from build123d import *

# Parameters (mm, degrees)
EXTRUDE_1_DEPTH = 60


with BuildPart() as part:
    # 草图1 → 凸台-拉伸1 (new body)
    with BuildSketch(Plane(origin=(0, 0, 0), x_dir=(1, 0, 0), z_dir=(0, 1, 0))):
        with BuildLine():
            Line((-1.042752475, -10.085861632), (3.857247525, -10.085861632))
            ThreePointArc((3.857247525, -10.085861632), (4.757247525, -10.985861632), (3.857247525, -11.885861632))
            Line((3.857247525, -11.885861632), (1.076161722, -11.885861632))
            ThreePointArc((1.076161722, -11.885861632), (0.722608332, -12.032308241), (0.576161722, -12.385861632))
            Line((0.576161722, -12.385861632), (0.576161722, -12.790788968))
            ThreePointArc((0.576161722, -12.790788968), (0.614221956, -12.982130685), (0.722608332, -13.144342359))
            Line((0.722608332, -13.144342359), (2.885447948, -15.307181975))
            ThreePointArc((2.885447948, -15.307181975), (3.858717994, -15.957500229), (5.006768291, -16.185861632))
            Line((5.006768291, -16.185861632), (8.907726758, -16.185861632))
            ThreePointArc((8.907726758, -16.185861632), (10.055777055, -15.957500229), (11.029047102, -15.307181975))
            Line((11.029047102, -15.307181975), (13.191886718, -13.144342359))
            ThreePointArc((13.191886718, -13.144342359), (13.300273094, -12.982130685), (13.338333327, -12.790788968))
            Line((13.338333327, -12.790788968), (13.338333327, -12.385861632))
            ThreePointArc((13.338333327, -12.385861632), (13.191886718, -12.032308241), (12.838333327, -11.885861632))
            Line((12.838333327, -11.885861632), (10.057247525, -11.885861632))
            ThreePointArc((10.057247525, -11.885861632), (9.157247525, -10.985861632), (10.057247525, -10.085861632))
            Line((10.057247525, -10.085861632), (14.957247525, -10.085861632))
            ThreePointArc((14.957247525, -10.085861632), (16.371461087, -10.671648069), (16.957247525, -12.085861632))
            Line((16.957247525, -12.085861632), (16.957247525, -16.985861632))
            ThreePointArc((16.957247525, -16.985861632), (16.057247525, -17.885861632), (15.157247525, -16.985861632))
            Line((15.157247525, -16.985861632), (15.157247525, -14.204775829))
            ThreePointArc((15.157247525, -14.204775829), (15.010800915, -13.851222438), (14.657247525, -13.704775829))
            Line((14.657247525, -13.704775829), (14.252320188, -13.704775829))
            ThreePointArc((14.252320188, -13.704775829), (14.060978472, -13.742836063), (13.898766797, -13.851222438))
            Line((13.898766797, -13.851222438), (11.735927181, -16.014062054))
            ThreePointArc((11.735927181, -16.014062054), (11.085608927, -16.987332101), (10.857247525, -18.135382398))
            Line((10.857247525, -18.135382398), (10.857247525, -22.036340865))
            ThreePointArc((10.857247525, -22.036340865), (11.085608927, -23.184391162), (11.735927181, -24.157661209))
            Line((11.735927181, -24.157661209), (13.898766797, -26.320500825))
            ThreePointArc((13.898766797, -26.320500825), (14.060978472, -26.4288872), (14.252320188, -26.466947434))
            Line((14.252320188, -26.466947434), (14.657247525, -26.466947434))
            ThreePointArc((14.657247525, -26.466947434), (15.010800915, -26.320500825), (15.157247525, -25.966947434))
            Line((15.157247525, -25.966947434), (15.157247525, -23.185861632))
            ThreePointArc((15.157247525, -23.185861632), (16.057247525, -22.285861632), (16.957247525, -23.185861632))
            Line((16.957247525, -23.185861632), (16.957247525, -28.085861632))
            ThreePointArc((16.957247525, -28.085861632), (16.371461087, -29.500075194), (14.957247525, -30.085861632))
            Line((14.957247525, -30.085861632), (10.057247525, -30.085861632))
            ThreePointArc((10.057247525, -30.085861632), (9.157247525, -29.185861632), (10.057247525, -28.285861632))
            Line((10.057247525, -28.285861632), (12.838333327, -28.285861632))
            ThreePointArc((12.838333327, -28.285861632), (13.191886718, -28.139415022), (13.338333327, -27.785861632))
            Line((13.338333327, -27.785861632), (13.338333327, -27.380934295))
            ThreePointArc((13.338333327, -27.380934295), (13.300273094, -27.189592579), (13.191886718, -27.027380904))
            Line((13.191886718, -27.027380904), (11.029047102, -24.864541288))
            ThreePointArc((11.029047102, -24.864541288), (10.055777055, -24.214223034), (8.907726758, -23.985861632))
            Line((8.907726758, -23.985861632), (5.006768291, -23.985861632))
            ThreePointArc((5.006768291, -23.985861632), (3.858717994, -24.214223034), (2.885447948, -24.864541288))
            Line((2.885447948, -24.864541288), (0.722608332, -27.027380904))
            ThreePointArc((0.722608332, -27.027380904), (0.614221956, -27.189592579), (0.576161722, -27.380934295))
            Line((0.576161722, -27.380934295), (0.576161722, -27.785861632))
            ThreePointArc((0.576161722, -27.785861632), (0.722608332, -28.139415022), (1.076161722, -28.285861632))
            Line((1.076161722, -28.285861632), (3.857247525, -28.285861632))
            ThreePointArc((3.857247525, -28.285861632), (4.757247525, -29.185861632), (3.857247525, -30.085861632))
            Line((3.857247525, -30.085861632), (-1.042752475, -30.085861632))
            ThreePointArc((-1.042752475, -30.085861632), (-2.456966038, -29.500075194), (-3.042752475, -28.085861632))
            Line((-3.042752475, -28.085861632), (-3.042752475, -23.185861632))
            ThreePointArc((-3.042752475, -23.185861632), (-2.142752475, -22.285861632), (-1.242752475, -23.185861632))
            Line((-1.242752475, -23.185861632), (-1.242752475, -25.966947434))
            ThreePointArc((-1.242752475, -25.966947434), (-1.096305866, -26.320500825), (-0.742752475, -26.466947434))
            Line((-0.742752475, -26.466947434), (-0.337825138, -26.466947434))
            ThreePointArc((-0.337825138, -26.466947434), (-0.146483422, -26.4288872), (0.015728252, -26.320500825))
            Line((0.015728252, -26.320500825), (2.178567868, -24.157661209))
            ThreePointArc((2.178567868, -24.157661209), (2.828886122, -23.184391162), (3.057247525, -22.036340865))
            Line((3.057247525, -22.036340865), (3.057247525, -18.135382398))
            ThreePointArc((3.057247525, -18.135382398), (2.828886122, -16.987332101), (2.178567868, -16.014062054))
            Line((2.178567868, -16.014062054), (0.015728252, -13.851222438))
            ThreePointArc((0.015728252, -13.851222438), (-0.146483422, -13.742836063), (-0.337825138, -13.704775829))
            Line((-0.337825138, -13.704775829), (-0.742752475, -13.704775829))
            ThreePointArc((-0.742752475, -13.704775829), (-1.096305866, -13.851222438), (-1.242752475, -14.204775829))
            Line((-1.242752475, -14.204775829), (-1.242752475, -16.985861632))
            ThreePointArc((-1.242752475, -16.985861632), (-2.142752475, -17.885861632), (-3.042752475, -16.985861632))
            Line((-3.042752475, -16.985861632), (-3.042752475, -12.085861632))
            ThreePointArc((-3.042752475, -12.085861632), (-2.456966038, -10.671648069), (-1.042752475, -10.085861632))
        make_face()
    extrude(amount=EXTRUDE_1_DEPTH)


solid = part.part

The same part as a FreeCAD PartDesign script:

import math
import FreeCAD as App
import Part
import Sketcher
from FreeCAD import Vector
Q = App.Units.Quantity

doc = App.newDocument("Part")
params = doc.addObject("Spreadsheet::Sheet", "Params")
for row, (alias, value) in enumerate([
    ("sketch1_radius", "2 mm"),
    ("sketch1_radius2", "3 mm"),
    ("sketch1_radius3", "0.9 mm"),
    ("sketch1_radius4", "0.5 mm"),
    ("sketch1_width", "4.9 mm"),
    ("pad1_length", "60 mm"),
], start=1):
    params.set(f"A{row}", alias)
    params.set(f"B{row}", "=" + value)
    params.setAlias(f"B{row}", alias)

body = doc.addObject("PartDesign::Body", "Body")

sketch1 = body.newObject("Sketcher::SketchObject", "Sketch")
sketch1.AttachmentSupport = (doc.getObject("XZ_Plane"), [""])
sketch1.MapMode = "FlatFace"
sketch1.addGeometry([
    Part.LineSegment(Vector(3.857248, 10.085862, 0), Vector(-1.042752, 10.085862, 0)),
    Part.ArcOfCircle(Part.Circle(Vector(-1.042752, 12.085862, 0), Vector(0, 0, 1), 2), math.radians(180), math.radians(270)),
    Part.LineSegment(Vector(-3.042752, 12.085862, 0), Vector(-3.042752, 16.985862, 0)),
    Part.ArcOfCircle(Part.Circle(Vector(-2.142752, 16.985862, 0), Vector(0, 0, 1), 0.9), math.radians(0), math.radians(180)),
    Part.LineSegment(Vector(-1.242752, 16.985862, 0), Vector(-1.242752, 14.204776, 0)),
    Part.ArcOfCircle(Part.Circle(Vector(-0.742752, 14.204776, 0), Vector(0, 0, 1), 0.5), math.radians(180), math.radians(270)),
    Part.LineSegment(Vector(-0.742752, 13.704776, 0), Vector(-0.337825, 13.704776, 0)),
    Part.ArcOfCircle(Part.Circle(Vector(-0.337825, 14.204776, 0), Vector(0, 0, 1), 0.5), math.radians(-90), math.radians(-45)),
    Part.LineSegment(Vector(0.015728, 13.851222, 0), Vector(2.178568, 16.014062, 0)),
    Part.ArcOfCircle(Part.Circle(Vector(0.057248, 18.135382, 0), Vector(0, 0, 1), 3), math.radians(-45), math.radians(0)),
    Part.LineSegment(Vector(3.057248, 18.135382, 0), Vector(3.057248, 22.036341, 0)),
    Part.ArcOfCircle(Part.Circle(Vector(0.057248, 22.036341, 0), Vector(0, 0, 1), 3), math.radians(0), math.radians(45)),
    Part.LineSegment(Vector(2.178568, 24.157661, 0), Vector(0.015728, 26.320501, 0)),
    Part.ArcOfCircle(Part.Circle(Vector(-0.337825, 25.966947, 0), Vector(0, 0, 1), 0.5), math.radians(45), math.radians(90)),
    Part.LineSegment(Vector(-0.337825, 26.466947, 0), Vector(-0.742752, 26.466947, 0)),
    Part.ArcOfCircle(Part.Circle(Vector(-0.742752, 25.966947, 0), Vector(0, 0, 1), 0.5), math.radians(90), math.radians(180)),
    Part.LineSegment(Vector(-1.242752, 25.966947, 0), Vector(-1.242752, 23.185862, 0)),
    Part.ArcOfCircle(Part.Circle(Vector(-2.142752, 23.185862, 0), Vector(0, 0, 1), 0.9), math.radians(180), math.radians(360)),
    Part.LineSegment(Vector(-3.042752, 23.185862, 0), Vector(-3.042752, 28.085862, 0)),
    Part.ArcOfCircle(Part.Circle(Vector(-1.042752, 28.085862, 0), Vector(0, 0, 1), 2), math.radians(90), math.radians(180)),
    Part.LineSegment(Vector(-1.042752, 30.085862, 0), Vector(3.857248, 30.085862, 0)),
    Part.ArcOfCircle(Part.Circle(Vector(3.857248, 29.185862, 0), Vector(0, 0, 1), 0.9), math.radians(-90), math.radians(90)),
    Part.LineSegment(Vector(3.857248, 28.285862, 0), Vector(1.076162, 28.285862, 0)),
    Part.ArcOfCircle(Part.Circle(Vector(1.076162, 27.785862, 0), Vector(0, 0, 1), 0.5), math.radians(90), math.radians(180)),
    Part.LineSegment(Vector(0.576162, 27.785862, 0), Vector(0.576162, 27.380934, 0)),
    Part.ArcOfCircle(Part.Circle(Vector(1.076162, 27.380934, 0), Vector(0, 0, 1), 0.5), math.radians(-180), math.radians(-135)),
    Part.LineSegment(Vector(0.722608, 27.027381, 0), Vector(2.885448, 24.864541, 0)),
    Part.ArcOfCircle(Part.Circle(Vector(5.006768, 26.985862, 0), Vector(0, 0, 1), 3), math.radians(-135), math.radians(-90)),
    Part.LineSegment(Vector(5.006768, 23.985862, 0), Vector(8.907727, 23.985862, 0)),
    Part.ArcOfCircle(Part.Circle(Vector(8.907727, 26.985862, 0), Vector(0, 0, 1), 3), math.radians(-90), math.radians(-45)),
    Part.LineSegment(Vector(11.029047, 24.864541, 0), Vector(13.191887, 27.027381, 0)),
    Part.ArcOfCircle(Part.Circle(Vector(12.838333, 27.380934, 0), Vector(0, 0, 1), 0.5), math.radians(-45), math.radians(0)),
    Part.LineSegment(Vector(13.338333, 27.380934, 0), Vector(13.338333, 27.785862, 0)),
    Part.ArcOfCircle(Part.Circle(Vector(12.838333, 27.785862, 0), Vector(0, 0, 1), 0.5), math.radians(0), math.radians(90)),
    Part.LineSegment(Vector(12.838333, 28.285862, 0), Vector(10.057248, 28.285862, 0)),
    Part.ArcOfCircle(Part.Circle(Vector(10.057248, 29.185862, 0), Vector(0, 0, 1), 0.9), math.radians(90), math.radians(270)),
    Part.LineSegment(Vector(10.057248, 30.085862, 0), Vector(14.957248, 30.085862, 0)),
    Part.ArcOfCircle(Part.Circle(Vector(14.957248, 28.085862, 0), Vector(0, 0, 1), 2), math.radians(0), math.radians(90)),
    Part.LineSegment(Vector(16.957248, 28.085862, 0), Vector(16.957248, 23.185862, 0)),
    Part.ArcOfCircle(Part.Circle(Vector(16.057248, 23.185862, 0), Vector(0, 0, 1), 0.9), math.radians(180), math.radians(360)),
    Part.LineSegment(Vector(15.157248, 23.185862, 0), Vector(15.157248, 25.966947, 0)),
    Part.ArcOfCircle(Part.Circle(Vector(14.657248, 25.966947, 0), Vector(0, 0, 1), 0.5), math.radians(0), math.radians(90)),
    Part.LineSegment(Vector(14.657248, 26.466947, 0), Vector(14.25232, 26.466947, 0)),
    Part.ArcOfCircle(Part.Circle(Vector(14.25232, 25.966947, 0), Vector(0, 0, 1), 0.5), math.radians(90), math.radians(135)),
    Part.LineSegment(Vector(13.898767, 26.320501, 0), Vector(11.735927, 24.157661, 0)),
    Part.ArcOfCircle(Part.Circle(Vector(13.857248, 22.036341, 0), Vector(0, 0, 1), 3), math.radians(135), math.radians(180)),
    Part.LineSegment(Vector(10.857248, 22.036341, 0), Vector(10.857248, 18.135382, 0)),
    Part.ArcOfCircle(Part.Circle(Vector(13.857248, 18.135382, 0), Vector(0, 0, 1), 3), math.radians(180), math.radians(225)),
    Part.LineSegment(Vector(11.735927, 16.014062, 0), Vector(13.898767, 13.851222, 0)),
    Part.ArcOfCircle(Part.Circle(Vector(14.25232, 14.204776, 0), Vector(0, 0, 1), 0.5), math.radians(-135), math.radians(-90)),
    Part.LineSegment(Vector(14.25232, 13.704776, 0), Vector(14.657248, 13.704776, 0)),
    Part.ArcOfCircle(Part.Circle(Vector(14.657248, 14.204776, 0), Vector(0, 0, 1), 0.5), math.radians(-90), math.radians(0)),
    Part.LineSegment(Vector(15.157248, 14.204776, 0), Vector(15.157248, 16.985862, 0)),
    Part.ArcOfCircle(Part.Circle(Vector(16.057248, 16.985862, 0), Vector(0, 0, 1), 0.9), math.radians(0), math.radians(180)),
    Part.LineSegment(Vector(16.957248, 16.985862, 0), Vector(16.957248, 12.085862, 0)),
    Part.ArcOfCircle(Part.Circle(Vector(14.957248, 12.085862, 0), Vector(0, 0, 1), 2), math.radians(-90), math.radians(0)),
    Part.LineSegment(Vector(14.957248, 10.085862, 0), Vector(10.057248, 10.085862, 0)),
    Part.ArcOfCircle(Part.Circle(Vector(10.057248, 10.985862, 0), Vector(0, 0, 1), 0.9), math.radians(90), math.radians(270)),
    Part.LineSegment(Vector(10.057248, 11.885862, 0), Vector(12.838333, 11.885862, 0)),
    Part.ArcOfCircle(Part.Circle(Vector(12.838333, 12.385862, 0), Vector(0, 0, 1), 0.5), math.radians(-90), math.radians(0)),
    Part.LineSegment(Vector(13.338333, 12.385862, 0), Vector(13.338333, 12.790789, 0)),
    Part.ArcOfCircle(Part.Circle(Vector(12.838333, 12.790789, 0), Vector(0, 0, 1), 0.5), math.radians(0), math.radians(45)),
    Part.LineSegment(Vector(13.191887, 13.144342, 0), Vector(11.029047, 15.307182, 0)),
    Part.ArcOfCircle(Part.Circle(Vector(8.907727, 13.185862, 0), Vector(0, 0, 1), 3), math.radians(45), math.radians(90)),
    Part.LineSegment(Vector(8.907727, 16.185862, 0), Vector(5.006768, 16.185862, 0)),
    Part.ArcOfCircle(Part.Circle(Vector(5.006768, 13.185862, 0), Vector(0, 0, 1), 3), math.radians(90), math.radians(135)),
    Part.LineSegment(Vector(2.885448, 15.307182, 0), Vector(0.722608, 13.144342, 0)),
    Part.ArcOfCircle(Part.Circle(Vector(1.076162, 12.790789, 0), Vector(0, 0, 1), 0.5), math.radians(135), math.radians(180)),
    Part.LineSegment(Vector(0.576162, 12.790789, 0), Vector(0.576162, 12.385862, 0)),
    Part.ArcOfCircle(Part.Circle(Vector(1.076162, 12.385862, 0), Vector(0, 0, 1), 0.5), math.radians(180), math.radians(270)),
    Part.LineSegment(Vector(1.076162, 11.885862, 0), Vector(3.857248, 11.885862, 0)),
    Part.ArcOfCircle(Part.Circle(Vector(3.857248, 10.985862, 0), Vector(0, 0, 1), 0.9), math.radians(-90), math.radians(90)),
], False)
sketch1.addConstraint([
    Sketcher.Constraint("Tangent", 0, 2, 1, 2),
    Sketcher.Constraint("Tangent", 1, 1, 2, 1),
    Sketcher.Constraint("Tangent", 2, 2, 3, 2),
    Sketcher.Constraint("Tangent", 3, 1, 4, 1),
    Sketcher.Constraint("Tangent", 4, 2, 5, 1),
    Sketcher.Constraint("Tangent", 5, 2, 6, 1),
    Sketcher.Constraint("Tangent", 6, 2, 7, 1),
    Sketcher.Constraint("Tangent", 7, 2, 8, 1),
    Sketcher.Constraint("Tangent", 8, 2, 9, 1),
    Sketcher.Constraint("Tangent", 9, 2, 10, 1),
    Sketcher.Constraint("Tangent", 10, 2, 11, 1),
    Sketcher.Constraint("Tangent", 11, 2, 12, 1),
    Sketcher.Constraint("Tangent", 12, 2, 13, 1),
    Sketcher.Constraint("Tangent", 13, 2, 14, 1),
    Sketcher.Constraint("Tangent", 14, 2, 15, 1),
    Sketcher.Constraint("Tangent", 15, 2, 16, 1),
    Sketcher.Constraint("Tangent", 16, 2, 17, 2),
    Sketcher.Constraint("Tangent", 17, 1, 18, 1),
    Sketcher.Constraint("Tangent", 18, 2, 19, 2),
    Sketcher.Constraint("Tangent", 19, 1, 20, 1),
    Sketcher.Constraint("Tangent", 20, 2, 21, 2),
    Sketcher.Constraint("Tangent", 21, 1, 22, 1),
    Sketcher.Constraint("Tangent", 22, 2, 23, 1),
    Sketcher.Constraint("Tangent", 23, 2, 24, 1),
    Sketcher.Constraint("Tangent", 24, 2, 25, 1),
    Sketcher.Constraint("Tangent", 25, 2, 26, 1),
    Sketcher.Constraint("Tangent", 26, 2, 27, 1),
    Sketcher.Constraint("Tangent", 27, 2, 28, 1),
    Sketcher.Constraint("Tangent", 28, 2, 29, 1),
    Sketcher.Constraint("Tangent", 29, 2, 30, 1),
    Sketcher.Constraint("Tangent", 30, 2, 31, 1),
    Sketcher.Constraint("Tangent", 31, 2, 32, 1),
    Sketcher.Constraint("Tangent", 32, 2, 33, 1),
    Sketcher.Constraint("Tangent", 33, 2, 34, 1),
    Sketcher.Constraint("Tangent", 34, 2, 35, 2),
    Sketcher.Constraint("Tangent", 35, 1, 36, 1),
    Sketcher.Constraint("Tangent", 36, 2, 37, 2),
    Sketcher.Constraint("Tangent", 37, 1, 38, 1),
    Sketcher.Constraint("Tangent", 38, 2, 39, 2),
    Sketcher.Constraint("Tangent", 39, 1, 40, 1),
    Sketcher.Constraint("Tangent", 40, 2, 41, 1),
    Sketcher.Constraint("Tangent", 41, 2, 42, 1),
    Sketcher.Constraint("Tangent", 42, 2, 43, 1),
    Sketcher.Constraint("Tangent", 43, 2, 44, 1),
    Sketcher.Constraint("Tangent", 44, 2, 45, 1),
    Sketcher.Constraint("Tangent", 45, 2, 46, 1),
    Sketcher.Constraint("Tangent", 46, 2, 47, 1),
    Sketcher.Constraint("Tangent", 47, 2, 48, 1),
    Sketcher.Constraint("Tangent", 48, 2, 49, 1),
    Sketcher.Constraint("Tangent", 49, 2, 50, 1),
    Sketcher.Constraint("Tangent", 50, 2, 51, 1),
    Sketcher.Constraint("Tangent", 51, 2, 52, 1),
    Sketcher.Constraint("Tangent", 52, 2, 53, 2),
    Sketcher.Constraint("Tangent", 53, 1, 54, 1),
    Sketcher.Constraint("Tangent", 54, 2, 55, 2),
    Sketcher.Constraint("Tangent", 55, 1, 56, 1),
    Sketcher.Constraint("Tangent", 56, 2, 57, 2),
    Sketcher.Constraint("Tangent", 57, 1, 58, 1),
    Sketcher.Constraint("Tangent", 58, 2, 59, 1),
    Sketcher.Constraint("Tangent", 59, 2, 60, 1),
    Sketcher.Constraint("Tangent", 60, 2, 61, 1),
    Sketcher.Constraint("Tangent", 61, 2, 62, 1),
    Sketcher.Constraint("Tangent", 62, 2, 63, 1),
    Sketcher.Constraint("Tangent", 63, 2, 64, 1),
    Sketcher.Constraint("Tangent", 64, 2, 65, 1),
    Sketcher.Constraint("Tangent", 65, 2, 66, 1),
    Sketcher.Constraint("Tangent", 66, 2, 67, 1),
    Sketcher.Constraint("Tangent", 67, 2, 68, 1),
    Sketcher.Constraint("Tangent", 68, 2, 69, 1),
    Sketcher.Constraint("Tangent", 69, 2, 70, 1),
    Sketcher.Constraint("Tangent", 70, 2, 71, 2),
    Sketcher.Constraint("Tangent", 71, 1, 0, 1),
    Sketcher.Constraint("Horizontal", 0),
    Sketcher.Constraint("Vertical", 2),
    Sketcher.Constraint("Vertical", 4),
    Sketcher.Constraint("Horizontal", 6),
    Sketcher.Constraint("Vertical", 10),
    Sketcher.Constraint("Horizontal", 14),
    Sketcher.Constraint("Vertical", 16),
    Sketcher.Constraint("Vertical", 18),
    Sketcher.Constraint("Horizontal", 20),
    Sketcher.Constraint("Horizontal", 22),
    Sketcher.Constraint("Vertical", 24),
    Sketcher.Constraint("Horizontal", 28),
    Sketcher.Constraint("Vertical", 32),
    Sketcher.Constraint("Horizontal", 34),
    Sketcher.Constraint("Horizontal", 36),
    Sketcher.Constraint("Vertical", 38),
    Sketcher.Constraint("Vertical", 40),
    Sketcher.Constraint("Horizontal", 42),
    Sketcher.Constraint("Vertical", 46),
    Sketcher.Constraint("Horizontal", 50),
    Sketcher.Constraint("Vertical", 52),
    Sketcher.Constraint("Vertical", 54),
    Sketcher.Constraint("Horizontal", 56),
    Sketcher.Constraint("Horizontal", 58),
    Sketcher.Constraint("Vertical", 60),
    Sketcher.Constraint("Horizontal", 64),
    Sketcher.Constraint("Vertical", 68),
    Sketcher.Constraint("Horizontal", 70),
    Sketcher.Constraint("Equal", 5, 7),
    Sketcher.Constraint("Equal", 9, 11),
    Sketcher.Constraint("Equal", 7, 13),
    Sketcher.Constraint("Equal", 13, 15),
    Sketcher.Constraint("Equal", 3, 17),
    Sketcher.Constraint("Equal", 1, 19),
    Sketcher.Constraint("Equal", 17, 21),
    Sketcher.Constraint("Equal", 15, 23),
    Sketcher.Constraint("Equal", 23, 25),
    Sketcher.Constraint("Equal", 11, 27),
    Sketcher.Constraint("Equal", 27, 29),
    Sketcher.Constraint("Equal", 25, 31),
    Sketcher.Constraint("Equal", 31, 33),
    Sketcher.Constraint("Equal", 21, 35),
    Sketcher.Constraint("Equal", 19, 37),
    Sketcher.Constraint("Equal", 35, 39),
    Sketcher.Constraint("Equal", 33, 41),
    Sketcher.Constraint("Equal", 41, 43),
    Sketcher.Constraint("Equal", 29, 45),
    Sketcher.Constraint("Equal", 45, 47),
    Sketcher.Constraint("Equal", 43, 49),
    Sketcher.Constraint("Equal", 49, 51),
    Sketcher.Constraint("Equal", 39, 53),
    Sketcher.Constraint("Equal", 37, 55),
    Sketcher.Constraint("Equal", 53, 57),
    Sketcher.Constraint("Equal", 51, 59),
    Sketcher.Constraint("Equal", 59, 61),
    Sketcher.Constraint("Equal", 47, 63),
    Sketcher.Constraint("Equal", 63, 65),
    Sketcher.Constraint("Equal", 61, 67),
    Sketcher.Constraint("Equal", 67, 69),
    Sketcher.Constraint("Equal", 57, 71),
    Sketcher.Constraint("Perpendicular", 8, 12),
    Sketcher.Constraint("Parallel", 12, 26),
    Sketcher.Constraint("Perpendicular", 26, 30),
    Sketcher.Constraint("Parallel", 30, 44),
    Sketcher.Constraint("Perpendicular", 44, 48),
    Sketcher.Constraint("Parallel", 48, 62),
    Sketcher.Constraint("Perpendicular", 62, 66),
    Sketcher.Constraint("Horizontal", 25, 3, 31, 3),
    Sketcher.Constraint("Horizontal", 23, 3, 33, 3),
    Sketcher.Constraint("Horizontal", 17, 3, 39, 3),
    Sketcher.Constraint("Horizontal", 15, 3, 41, 3),
    Sketcher.Constraint("Horizontal", 11, 3, 45, 3),
    Sketcher.Constraint("Horizontal", 9, 3, 47, 3),
    Sketcher.Constraint("Horizontal", 7, 3, 49, 3),
    Sketcher.Constraint("Horizontal", 3, 3, 53, 3),
    Sketcher.Constraint("Horizontal", 1, 3, 55, 3),
    Sketcher.Constraint("Horizontal", 61, 3, 67, 3),
    Sketcher.Constraint("Horizontal", 26, 2, 29, 2),
    Sketcher.Constraint("Vertical", 7, 3, 13, 3),
    Sketcher.Constraint("Vertical", 5, 3, 15, 3),
    Sketcher.Constraint("Vertical", 41, 3, 51, 3),
    Sketcher.Constraint("Vertical", 35, 3, 57, 3),
    Sketcher.Constraint("Vertical", 33, 3, 59, 3),
    Sketcher.Constraint("Vertical", 29, 3, 63, 3),
    Sketcher.Constraint("Vertical", 27, 3, 65, 3),
    Sketcher.Constraint("Vertical", 21, 3, 71, 3),
    Sketcher.Constraint("Equal", 22, 34),
    Sketcher.Constraint("Equal", 20, 36),
    Sketcher.Constraint("Equal", 14, 42),
    Sketcher.Constraint("Equal", 56, 2),
    Sketcher.Constraint("Equal", 70, 4),
    Sketcher.Constraint("Equal", 64, 10),
    Sketcher.Constraint("Equal", 4, 16),
    Sketcher.Constraint("Equal", 2, 18),
    Sketcher.Constraint("Equal", 50, 24),
    Sketcher.Constraint("Equal", 32, 60),
    Sketcher.Constraint("Equal", 12, 26),
    Sketcher.Constraint("Radius", 1, Q("2 mm")),
    Sketcher.Constraint("Radius", 9, Q("3 mm")),
    Sketcher.Constraint("Radius", 3, Q("0.9 mm")),
    Sketcher.Constraint("Radius", 5, Q("0.5 mm")),
    Sketcher.Constraint("DistanceX", 0, 2, 0, 1, Q("4.9 mm")),
    Sketcher.Constraint("DistanceX", 28, 1, 28, 2, Q("3.900958 mm")),
    Sketcher.Constraint("DistanceY", -1, 1, 12, 2, Q("26.320501 mm")),
    Sketcher.Constraint("DistanceX", 6, 1, 6, 2, Q("0.404927 mm")),
    Sketcher.Constraint("DistanceX", 22, 2, 22, 1, Q("2.781086 mm")),
    Sketcher.Constraint("DistanceY", -1, 1, 1, 3, Q("12.085862 mm")),
    Sketcher.Constraint("DistanceX", -1, 1, 23, 3, Q("1.076162 mm")),
])
sketch1.setExpression("Constraints[169]", "Params.sketch1_radius")
sketch1.setExpression("Constraints[170]", "Params.sketch1_radius2")
sketch1.setExpression("Constraints[171]", "Params.sketch1_radius3")
sketch1.setExpression("Constraints[172]", "Params.sketch1_radius4")
sketch1.setExpression("Constraints[173]", "Params.sketch1_width")
pad1 = body.newObject("PartDesign::Pad", "Pad")
pad1.Profile = sketch1
pad1.setExpression("Length", "Params.pad1_length")
pad1.Reversed = True

doc.recompute()
